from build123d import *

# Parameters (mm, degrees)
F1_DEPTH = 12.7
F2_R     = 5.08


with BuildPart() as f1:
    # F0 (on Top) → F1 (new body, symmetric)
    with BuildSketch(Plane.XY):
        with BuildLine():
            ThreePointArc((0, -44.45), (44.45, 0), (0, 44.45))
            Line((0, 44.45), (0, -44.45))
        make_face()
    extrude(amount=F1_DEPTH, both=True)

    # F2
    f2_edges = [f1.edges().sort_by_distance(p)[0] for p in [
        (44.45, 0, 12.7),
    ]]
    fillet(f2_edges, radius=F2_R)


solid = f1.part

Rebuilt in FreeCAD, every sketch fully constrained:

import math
import FreeCAD as App
import Part
import Sketcher
from FreeCAD import Vector
Q = App.Units.Quantity


def edges_at(feature, points):
    """Names of the edges that pass closest to the given points."""
    edges = feature.Shape.Edges
    near = lambda p: min(range(len(edges)), key=lambda i: edges[i].distToShape(Part.Vertex(*p))[0])
    return sorted({f"Edge{near(p) + 1}" for p in points})

doc = App.newDocument("Part")
params = doc.addObject("Spreadsheet::Sheet", "Params")
for row, (alias, value) in enumerate([
    ("sketch1_radius", "1.75 in"),
    ("pad1_length", "1 in"),
    ("fillet_radius", "0.2 in"),
], start=1):
    params.set(f"A{row}", alias)
    params.set(f"B{row}", "=" + value)
    params.setAlias(f"B{row}", alias)

body = doc.addObject("PartDesign::Body", "Body")

sketch1 = body.newObject("Sketcher::SketchObject", "Sketch")
sketch1.AttachmentSupport = (doc.getObject("XY_Plane"), [""])
sketch1.MapMode = "FlatFace"
sketch1.addGeometry(Part.ArcOfCircle(Part.Circle(Vector(0, 0, 0), Vector(0, 0, 1), 44), math.radians(-90), math.radians(90)), False)
sketch1.addGeometry(Part.LineSegment(Vector(0, 44, 0), Vector(0, -44, 0)), False)
sketch1.addConstraint(Sketcher.Constraint("Coincident", 0, 1, 1, 2))
sketch1.addConstraint(Sketcher.Constraint("Coincident", 1, 1, 0, 2))
sketch1.addConstraint(Sketcher.Constraint("Vertical", 1))
sketch1.addConstraint(Sketcher.Constraint("Coincident", 0, 3, -1, 1))
sketch1.addConstraint(Sketcher.Constraint("PointOnObject", 0, 1, -2))
sketch1.addConstraint(Sketcher.Constraint("Radius", 0, Q("1.75 in")))
sketch1.setExpression("Constraints[5]", "Params.sketch1_radius")
pad1 = body.newObject("PartDesign::Pad", "Pad")
pad1.Profile = sketch1
pad1.setExpression("Length", "Params.pad1_length")
pad1.Midplane = True
doc.recompute()

fillet = body.newObject("PartDesign::Fillet", "Fillet")
fillet.Base = (pad1, edges_at(pad1, [(44.45, 0, 12.7)]))
fillet.setExpression("Radius", "Params.fillet_radius")

doc.recompute()
